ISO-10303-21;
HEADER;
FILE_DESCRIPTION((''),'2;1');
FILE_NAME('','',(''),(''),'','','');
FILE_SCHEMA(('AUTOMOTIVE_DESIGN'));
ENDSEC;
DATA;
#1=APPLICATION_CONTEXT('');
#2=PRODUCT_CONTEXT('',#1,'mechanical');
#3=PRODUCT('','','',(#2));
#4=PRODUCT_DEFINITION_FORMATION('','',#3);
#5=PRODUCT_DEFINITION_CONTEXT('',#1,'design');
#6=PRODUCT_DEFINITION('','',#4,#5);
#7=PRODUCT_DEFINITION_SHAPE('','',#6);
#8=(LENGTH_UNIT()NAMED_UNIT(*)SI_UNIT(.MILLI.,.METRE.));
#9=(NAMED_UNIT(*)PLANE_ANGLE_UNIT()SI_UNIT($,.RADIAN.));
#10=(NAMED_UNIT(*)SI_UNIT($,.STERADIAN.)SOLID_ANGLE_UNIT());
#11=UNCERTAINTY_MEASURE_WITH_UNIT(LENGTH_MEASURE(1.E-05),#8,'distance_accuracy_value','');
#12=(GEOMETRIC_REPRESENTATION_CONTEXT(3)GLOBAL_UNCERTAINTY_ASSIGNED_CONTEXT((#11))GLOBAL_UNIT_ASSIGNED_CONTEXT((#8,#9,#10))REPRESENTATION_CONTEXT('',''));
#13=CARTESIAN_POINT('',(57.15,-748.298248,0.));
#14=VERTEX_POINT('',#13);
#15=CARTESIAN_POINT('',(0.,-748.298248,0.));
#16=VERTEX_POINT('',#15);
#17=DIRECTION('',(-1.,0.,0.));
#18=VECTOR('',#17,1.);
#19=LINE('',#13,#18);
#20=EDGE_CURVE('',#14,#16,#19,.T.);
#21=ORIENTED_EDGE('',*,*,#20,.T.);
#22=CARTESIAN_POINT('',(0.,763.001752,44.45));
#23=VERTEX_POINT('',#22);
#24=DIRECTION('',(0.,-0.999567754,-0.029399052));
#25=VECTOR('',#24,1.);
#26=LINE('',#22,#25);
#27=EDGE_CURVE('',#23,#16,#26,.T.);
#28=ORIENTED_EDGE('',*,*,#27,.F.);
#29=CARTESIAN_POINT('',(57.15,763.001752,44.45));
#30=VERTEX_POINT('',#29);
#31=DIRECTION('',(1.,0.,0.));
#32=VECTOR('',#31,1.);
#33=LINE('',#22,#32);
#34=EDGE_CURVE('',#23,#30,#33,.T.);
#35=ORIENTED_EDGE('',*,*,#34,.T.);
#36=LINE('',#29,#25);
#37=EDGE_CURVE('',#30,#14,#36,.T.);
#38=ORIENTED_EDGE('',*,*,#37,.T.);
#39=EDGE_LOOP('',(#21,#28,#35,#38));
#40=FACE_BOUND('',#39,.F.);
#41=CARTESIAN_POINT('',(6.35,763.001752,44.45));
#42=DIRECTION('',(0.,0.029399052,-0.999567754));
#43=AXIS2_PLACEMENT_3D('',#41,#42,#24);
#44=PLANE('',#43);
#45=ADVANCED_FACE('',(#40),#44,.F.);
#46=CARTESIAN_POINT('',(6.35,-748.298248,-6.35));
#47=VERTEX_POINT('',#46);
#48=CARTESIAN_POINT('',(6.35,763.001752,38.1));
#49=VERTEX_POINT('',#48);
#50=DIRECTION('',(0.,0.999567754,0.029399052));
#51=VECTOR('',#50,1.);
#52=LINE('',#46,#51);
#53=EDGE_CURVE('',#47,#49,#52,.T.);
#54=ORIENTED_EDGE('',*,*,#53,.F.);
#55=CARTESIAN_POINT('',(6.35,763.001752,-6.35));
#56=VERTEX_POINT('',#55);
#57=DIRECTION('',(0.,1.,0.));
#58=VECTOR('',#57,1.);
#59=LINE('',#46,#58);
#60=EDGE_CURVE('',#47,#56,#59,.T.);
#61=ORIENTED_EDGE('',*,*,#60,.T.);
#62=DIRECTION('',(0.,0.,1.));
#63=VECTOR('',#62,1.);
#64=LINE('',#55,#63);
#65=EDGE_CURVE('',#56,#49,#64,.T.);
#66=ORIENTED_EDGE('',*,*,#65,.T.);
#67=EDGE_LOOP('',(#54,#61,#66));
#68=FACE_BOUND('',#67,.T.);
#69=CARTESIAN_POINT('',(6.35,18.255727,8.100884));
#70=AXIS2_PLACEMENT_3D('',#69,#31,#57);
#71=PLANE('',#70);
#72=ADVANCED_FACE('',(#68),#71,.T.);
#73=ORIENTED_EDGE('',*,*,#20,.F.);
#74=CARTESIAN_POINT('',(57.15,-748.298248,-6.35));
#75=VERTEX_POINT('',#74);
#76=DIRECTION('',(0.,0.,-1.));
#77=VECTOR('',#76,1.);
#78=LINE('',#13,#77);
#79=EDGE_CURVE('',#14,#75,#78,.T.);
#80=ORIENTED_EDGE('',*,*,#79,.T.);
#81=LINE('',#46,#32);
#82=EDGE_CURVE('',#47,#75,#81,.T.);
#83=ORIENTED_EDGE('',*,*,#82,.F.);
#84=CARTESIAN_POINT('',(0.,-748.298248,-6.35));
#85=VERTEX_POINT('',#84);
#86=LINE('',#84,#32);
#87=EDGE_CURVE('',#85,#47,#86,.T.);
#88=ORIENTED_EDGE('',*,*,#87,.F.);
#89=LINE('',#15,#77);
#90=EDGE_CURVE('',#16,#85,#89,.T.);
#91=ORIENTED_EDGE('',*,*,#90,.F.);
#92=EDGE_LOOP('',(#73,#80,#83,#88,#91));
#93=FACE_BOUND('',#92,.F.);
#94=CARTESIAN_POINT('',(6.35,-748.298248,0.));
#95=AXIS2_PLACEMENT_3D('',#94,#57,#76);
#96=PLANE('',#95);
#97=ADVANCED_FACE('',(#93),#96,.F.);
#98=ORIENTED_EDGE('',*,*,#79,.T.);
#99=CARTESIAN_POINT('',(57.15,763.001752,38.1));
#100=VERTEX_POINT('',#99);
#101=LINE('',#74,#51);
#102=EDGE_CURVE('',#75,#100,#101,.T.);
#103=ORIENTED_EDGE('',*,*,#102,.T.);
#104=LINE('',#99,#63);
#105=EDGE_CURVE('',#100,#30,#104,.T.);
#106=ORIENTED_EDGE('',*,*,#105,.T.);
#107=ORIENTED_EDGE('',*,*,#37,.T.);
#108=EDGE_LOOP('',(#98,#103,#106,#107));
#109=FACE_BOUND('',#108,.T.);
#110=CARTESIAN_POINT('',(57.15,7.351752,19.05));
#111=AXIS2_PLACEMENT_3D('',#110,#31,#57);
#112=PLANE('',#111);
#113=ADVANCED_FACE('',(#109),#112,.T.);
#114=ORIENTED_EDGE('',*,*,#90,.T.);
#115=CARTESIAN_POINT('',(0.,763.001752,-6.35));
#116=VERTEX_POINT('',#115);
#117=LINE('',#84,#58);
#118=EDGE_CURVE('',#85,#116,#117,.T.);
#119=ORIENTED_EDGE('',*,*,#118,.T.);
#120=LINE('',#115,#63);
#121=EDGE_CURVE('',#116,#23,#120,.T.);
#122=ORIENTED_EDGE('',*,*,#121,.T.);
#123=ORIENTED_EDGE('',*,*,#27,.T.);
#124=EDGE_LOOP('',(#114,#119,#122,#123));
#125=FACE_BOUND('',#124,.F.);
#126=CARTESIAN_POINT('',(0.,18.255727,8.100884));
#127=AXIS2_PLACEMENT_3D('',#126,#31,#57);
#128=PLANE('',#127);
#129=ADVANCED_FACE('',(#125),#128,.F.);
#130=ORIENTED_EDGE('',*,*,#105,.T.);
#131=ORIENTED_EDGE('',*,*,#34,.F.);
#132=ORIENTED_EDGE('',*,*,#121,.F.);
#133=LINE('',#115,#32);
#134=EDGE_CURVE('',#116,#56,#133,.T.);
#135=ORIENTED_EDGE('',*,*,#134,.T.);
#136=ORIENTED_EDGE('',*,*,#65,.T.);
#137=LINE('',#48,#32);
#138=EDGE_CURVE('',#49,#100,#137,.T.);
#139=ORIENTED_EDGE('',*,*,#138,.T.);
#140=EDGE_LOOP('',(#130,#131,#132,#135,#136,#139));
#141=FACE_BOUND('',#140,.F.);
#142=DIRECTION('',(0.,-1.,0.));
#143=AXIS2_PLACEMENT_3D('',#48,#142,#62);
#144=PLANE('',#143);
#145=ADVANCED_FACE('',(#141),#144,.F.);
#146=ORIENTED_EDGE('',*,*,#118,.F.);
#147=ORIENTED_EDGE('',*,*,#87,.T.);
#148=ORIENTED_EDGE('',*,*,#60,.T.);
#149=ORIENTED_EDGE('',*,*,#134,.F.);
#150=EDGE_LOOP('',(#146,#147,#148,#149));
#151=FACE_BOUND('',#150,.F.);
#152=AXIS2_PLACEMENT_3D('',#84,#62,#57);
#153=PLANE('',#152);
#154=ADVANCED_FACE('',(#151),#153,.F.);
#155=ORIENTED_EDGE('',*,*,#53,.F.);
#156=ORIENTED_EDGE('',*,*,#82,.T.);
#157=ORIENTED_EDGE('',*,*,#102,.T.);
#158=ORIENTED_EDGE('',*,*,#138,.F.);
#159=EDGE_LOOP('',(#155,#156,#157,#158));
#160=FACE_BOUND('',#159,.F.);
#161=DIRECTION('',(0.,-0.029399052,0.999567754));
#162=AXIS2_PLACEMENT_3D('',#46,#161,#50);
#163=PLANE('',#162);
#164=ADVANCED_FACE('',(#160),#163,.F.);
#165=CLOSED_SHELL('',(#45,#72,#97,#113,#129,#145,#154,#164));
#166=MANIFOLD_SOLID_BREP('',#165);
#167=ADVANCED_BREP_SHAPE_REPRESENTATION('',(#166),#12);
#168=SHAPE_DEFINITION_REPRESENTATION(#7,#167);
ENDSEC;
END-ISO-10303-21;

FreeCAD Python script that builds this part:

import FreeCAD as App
import Part
import Sketcher
from FreeCAD import Vector
Q = App.Units.Quantity


def add_polygon(sketch, points):
    """Adds a closed chain of lines whose ends are joined by coincident constraints."""
    first, n = sketch.GeometryCount, len(points)
    for a, b in zip(points, points[1:] + points[:1]):
        sketch.addGeometry(Part.LineSegment(App.Vector(*a, 0), App.Vector(*b, 0)), False)
    for i in range(n):
        sketch.addConstraint(Sketcher.Constraint("Coincident", first + i, 2, first + (i + 1) % n, 1))

doc = App.newDocument("Part")
body = doc.addObject("PartDesign::Body", "Body")

# Sketch on YZ plane
sketch1 = body.newObject("Sketcher::SketchObject", "Sketch")
sketch1.AttachmentSupport = (doc.getObject("YZ_Plane"), [""])
sketch1.MapMode = "FlatFace"
add_polygon(sketch1, [(-748, -6), (763, -6), (763, 44), (-748, 0)])  # lines 0-3
sketch1.addConstraint(Sketcher.Constraint("Horizontal", 0))
sketch1.addConstraint(Sketcher.Constraint("Vertical", 1))
sketch1.addConstraint(Sketcher.Constraint("Vertical", 3))
sketch1.addConstraint(Sketcher.Constraint("PointOnObject", 2, 2, -1))
sketch1.addConstraint(Sketcher.Constraint("DistanceY", 1, 1, 1, 2, Q("2 in")))
sketch1.addConstraint(Sketcher.Constraint("DistanceX", 0, 1, 0, 2, Q("59.5 in")))
sketch1.addConstraint(Sketcher.Constraint("DistanceY", 3, 2, 3, 1, Q("0.25 in")))
sketch1.addConstraint(Sketcher.Constraint("DistanceX", -1, 1, 0, 2, Q("763.001752 mm")))
pad1 = body.newObject("PartDesign::Pad", "Pad")
pad1.Profile = sketch1
pad1.Length = Q("0.25 in")

# Sketch on YZ plane
sketch2 = body.newObject("Sketcher::SketchObject", "Sketch001")
sketch2.AttachmentSupport = (doc.getObject("YZ_Plane"), [""])
sketch2.MapMode = "FlatFace"
sketch2.AttachmentOffset = App.Placement(Vector(0, 0, 0.25 * 25.4), App.Rotation())
add_polygon(sketch2, [(-748, -6), (763, 38), (763, 44), (-748, 0)])  # lines 0-3
sketch2.addConstraint(Sketcher.Constraint("Vertical", 1))
sketch2.addConstraint(Sketcher.Constraint("Vertical", 3))
sketch2.addConstraint(Sketcher.Constraint("PointOnObject", 2, 2, -1))
sketch2.addConstraint(Sketcher.Constraint("Parallel", 0, 2))
sketch2.addConstraint(Sketcher.Constraint("DistanceY", 3, 2, 1, 2, Q("2 in")))
sketch2.addConstraint(Sketcher.Constraint("DistanceY", 1, 1, 1, 2, Q("0.25 in")))
sketch2.addConstraint(Sketcher.Constraint("DistanceX", 2, 2, 0, 2, Q("59.5 in")))
sketch2.addConstraint(Sketcher.Constraint("DistanceX", -1, 1, 0, 2, Q("763.001752 mm")))
pad2 = body.newObject("PartDesign::Pad", "Pad001")
pad2.Profile = sketch2
pad2.Length = Q("2 in")

doc.recompute()
